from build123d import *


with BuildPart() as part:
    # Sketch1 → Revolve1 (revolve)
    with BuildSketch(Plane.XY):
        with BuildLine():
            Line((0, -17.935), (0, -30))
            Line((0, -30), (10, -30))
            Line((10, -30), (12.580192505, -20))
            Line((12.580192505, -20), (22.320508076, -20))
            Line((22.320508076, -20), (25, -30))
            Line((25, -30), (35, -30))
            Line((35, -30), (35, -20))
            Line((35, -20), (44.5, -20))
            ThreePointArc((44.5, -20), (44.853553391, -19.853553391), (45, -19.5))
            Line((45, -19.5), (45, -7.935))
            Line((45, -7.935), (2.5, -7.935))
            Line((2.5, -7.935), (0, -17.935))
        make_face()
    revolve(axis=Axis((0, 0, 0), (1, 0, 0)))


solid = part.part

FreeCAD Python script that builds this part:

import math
import FreeCAD as App
import Part
import Sketcher

V = App.Vector
Q = App.Units.Quantity

doc = App.newDocument("Part")
body = doc.addObject("PartDesign::Body", "Body")

# Sketch on XY plane
sketch1 = body.newObject("Sketcher::SketchObject", "Sketch")
sketch1.AttachmentSupport = (doc.getObject("XY_Plane"), [""])
sketch1.MapMode = "FlatFace"
sketch1.addGeometry([
    Part.LineSegment(V(0, -17.93, 0), V(0, -30, 0)),  # 0
    Part.LineSegment(V(0, -30, 0), V(10, -30, 0)),  # 1
    Part.LineSegment(V(10, -30, 0), V(12.58, -20, 0)),  # 2
    Part.LineSegment(V(12.58, -20, 0), V(22.32, -20, 0)),  # 3
    Part.LineSegment(V(22.32, -20, 0), V(25, -30, 0)),  # 4
    Part.LineSegment(V(25, -30, 0), V(35, -30, 0)),  # 5
    Part.LineSegment(V(35, -30, 0), V(35, -20, 0)),  # 6
    Part.LineSegment(V(35, -20, 0), V(44.5, -20, 0)),  # 7
    Part.ArcOfCircle(Part.Circle(V(44.5, -19.5, 0), V(0, 0, 1), 0.5), math.radians(-90), math.radians(0)),  # 8
    Part.LineSegment(V(45, -19.5, 0), V(45, -7.93, 0)),  # 9
    Part.LineSegment(V(45, -7.93, 0), V(2.5, -7.93, 0)),  # 10
    Part.LineSegment(V(2.5, -7.93, 0), V(0, -17.93, 0)),  # 11
], False)
sketch1.addConstraint([
    Sketcher.Constraint("Coincident", 0, 2, 1, 1),
    Sketcher.Constraint("Coincident", 1, 2, 2, 1),
    Sketcher.Constraint("Coincident", 2, 2, 3, 1),
    Sketcher.Constraint("Coincident", 3, 2, 4, 1),
    Sketcher.Constraint("Coincident", 4, 2, 5, 1),
    Sketcher.Constraint("Coincident", 5, 2, 6, 1),
    Sketcher.Constraint("Coincident", 6, 2, 7, 1),
    Sketcher.Constraint("Tangent", 7, 2, 8, 1),
    Sketcher.Constraint("Tangent", 8, 2, 9, 1),
    Sketcher.Constraint("Coincident", 9, 2, 10, 1),
    Sketcher.Constraint("Coincident", 10, 2, 11, 1),
    Sketcher.Constraint("Coincident", 11, 2, 0, 1),
    Sketcher.Constraint("Vertical", 0),
    Sketcher.Constraint("Horizontal", 1),
    Sketcher.Constraint("Horizontal", 3),
    Sketcher.Constraint("Horizontal", 5),
    Sketcher.Constraint("Vertical", 6),
    Sketcher.Constraint("Horizontal", 7),
    Sketcher.Constraint("Vertical", 9),
    Sketcher.Constraint("Horizontal", 10),
    Sketcher.Constraint("PointOnObject", 0, 2, -2),
    Sketcher.Constraint("Horizontal", 1, 2, 4, 2),
    Sketcher.Constraint("Horizontal", 3, 2, 6, 2),
    Sketcher.Constraint("Equal", 1, 5),
    Sketcher.Constraint("Equal", 5, 6),
    Sketcher.Constraint("Radius", 8, Q("0.5 mm")),
    Sketcher.Constraint("DistanceX", 1, 1, 1, 2, Q("10 mm")),
    Sketcher.Constraint("Angle", 4, Q("-75 deg")),
    Sketcher.Constraint("DistanceX", 7, 1, 7, 2, Q("9.5 mm")),
    Sketcher.Constraint("DistanceX", 10, 2, 10, 1, Q("42.5 mm")),
    Sketcher.Constraint("DistanceY", 0, 2, -1, 1, Q("30 mm")),
    Sketcher.Constraint("DistanceX", -1, 1, 4, 2, Q("25 mm")),
    Sketcher.Constraint("DistanceY", 11, 2, 10, 2, Q("10 mm")),
    Sketcher.Constraint("DistanceY", 0, 2, 0, 1, Q("12.065 mm")),
    Sketcher.Constraint("DistanceX", 3, 1, 3, 2, Q("9.740316 mm")),
])
revolution = body.newObject("PartDesign::Revolution", "Revolution")
revolution.Profile = sketch1
revolution.ReferenceAxis = (sketch1, ["H_Axis"])
revolution.Angle = 360

doc.recompute()
